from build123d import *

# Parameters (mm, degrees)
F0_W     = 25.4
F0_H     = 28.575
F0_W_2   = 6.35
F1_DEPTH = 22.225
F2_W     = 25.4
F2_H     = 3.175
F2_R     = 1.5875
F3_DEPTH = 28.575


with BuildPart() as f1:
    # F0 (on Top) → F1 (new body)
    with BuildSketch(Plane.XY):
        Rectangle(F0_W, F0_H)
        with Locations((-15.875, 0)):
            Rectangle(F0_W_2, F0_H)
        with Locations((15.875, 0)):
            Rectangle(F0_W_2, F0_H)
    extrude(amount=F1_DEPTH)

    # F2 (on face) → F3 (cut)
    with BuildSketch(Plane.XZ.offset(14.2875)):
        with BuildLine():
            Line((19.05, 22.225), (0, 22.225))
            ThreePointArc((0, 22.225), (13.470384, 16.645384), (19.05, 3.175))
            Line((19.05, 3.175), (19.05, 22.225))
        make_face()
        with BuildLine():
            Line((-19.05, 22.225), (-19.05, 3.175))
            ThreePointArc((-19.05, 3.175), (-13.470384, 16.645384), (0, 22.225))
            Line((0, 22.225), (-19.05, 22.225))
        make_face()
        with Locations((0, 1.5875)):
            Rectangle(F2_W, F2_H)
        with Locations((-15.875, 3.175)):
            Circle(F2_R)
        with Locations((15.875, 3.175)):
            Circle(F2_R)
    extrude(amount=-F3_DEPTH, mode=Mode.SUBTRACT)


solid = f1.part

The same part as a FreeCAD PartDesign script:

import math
import FreeCAD as App
import Part
import Sketcher
Q = App.Units.Quantity

doc = App.newDocument("Part")
params = doc.addObject("Spreadsheet::Sheet", "Params")
for row, (alias, value) in enumerate([
    ("sketch1_width", "1.5 in"),
    ("sketch1_height", "1.125 in"),
    ("pad1_length", "0.875 in"),
    ("sketch2_width", "1 in"),
    ("sketch2_radius", "0.75 in"),
    ("sketch2_diameter", "0.125 in"),
    ("sketch2_height", "0.125 in"),
    ("pocket1_length", "1.125 in"),
], start=1):
    params.set(f"A{row}", alias)
    params.set(f"B{row}", "=" + value)
    params.setAlias(f"B{row}", alias)

body = doc.addObject("PartDesign::Body", "Body")

# Sketch on XY plane
sketch1 = doc.addObject("Sketcher::SketchObject", "Sketch")
body.addObject(sketch1)
sketch1.AttachmentSupport = (doc.XY_Plane, [""])
sketch1.MapMode = "FlatFace"
sketch1.addGeometry(Part.LineSegment(App.Vector(-19, 14, 0), App.Vector(-19, -14, 0)), False)
sketch1.addGeometry(Part.LineSegment(App.Vector(-19, -14, 0), App.Vector(19, -14, 0)), False)
sketch1.addGeometry(Part.LineSegment(App.Vector(19, -14, 0), App.Vector(19, 14, 0)), False)
sketch1.addGeometry(Part.LineSegment(App.Vector(19, 14, 0), App.Vector(-19, 14, 0)), False)
sketch1.addConstraint(Sketcher.Constraint("Coincident", 0, 2, 1, 1))
sketch1.addConstraint(Sketcher.Constraint("Coincident", 1, 2, 2, 1))
sketch1.addConstraint(Sketcher.Constraint("Coincident", 2, 2, 3, 1))
sketch1.addConstraint(Sketcher.Constraint("Coincident", 3, 2, 0, 1))
sketch1.addConstraint(Sketcher.Constraint("Vertical", 0))
sketch1.addConstraint(Sketcher.Constraint("Horizontal", 1))
sketch1.addConstraint(Sketcher.Constraint("Vertical", 2))
sketch1.addConstraint(Sketcher.Constraint("Horizontal", 3))
sketch1.addConstraint(Sketcher.Constraint("Symmetric", 0, 2, 2, 2, -1, 1))
sketch1.addConstraint(Sketcher.Constraint("DistanceX", 1, 1, 1, 2, Q("1.5 in")))
sketch1.addConstraint(Sketcher.Constraint("DistanceY", 0, 2, 0, 1, Q("1.125 in")))
sketch1.setExpression("Constraints[9]", "Params.sketch1_width")
sketch1.setExpression("Constraints[10]", "Params.sketch1_height")
pad1 = doc.addObject("PartDesign::Pad", "Pad")
body.addObject(pad1)
pad1.Profile = sketch1
pad1.setExpression("Length", "Params.pad1_length")

# Sketch on XZ plane
sketch2 = doc.addObject("Sketcher::SketchObject", "Sketch001")
body.addObject(sketch2)
sketch2.AttachmentSupport = (doc.XZ_Plane, [""])
sketch2.MapMode = "FlatFace"
sketch2.AttachmentOffset = App.Placement(App.Vector(0, 0, 0.5625 * 25.4), App.Rotation())
sketch2.addGeometry(Part.LineSegment(App.Vector(19.1, 22.2, 0), App.Vector(0, 22.2, 0)), False)
sketch2.addGeometry(Part.ArcOfCircle(Part.Circle(App.Vector(0, 3.2, 0), App.Vector(0, 0, 1), 19.1), math.radians(0), math.radians(90)), False)
sketch2.addGeometry(Part.LineSegment(App.Vector(19.1, 3.2, 0), App.Vector(19.1, 22.2, 0)), False)
sketch2.addGeometry(Part.LineSegment(App.Vector(-19.1, 22.2, 0), App.Vector(-19.1, 3.2, 0)), False)
sketch2.addGeometry(Part.ArcOfCircle(Part.Circle(App.Vector(0, 3.2, 0), App.Vector(0, 0, 1), 19.1), math.radians(90), math.radians(180)), False)
sketch2.addGeometry(Part.LineSegment(App.Vector(0, 22.2, 0), App.Vector(-19.1, 22.2, 0)), False)
sketch2.addGeometry(Part.LineSegment(App.Vector(-12.7, 3.2, 0), App.Vector(-12.7, 0, 0)), False)
sketch2.addGeometry(Part.LineSegment(App.Vector(-12.7, 0, 0), App.Vector(12.7, 0, 0)), False)
sketch2.addGeometry(Part.LineSegment(App.Vector(12.7, 0, 0), App.Vector(12.7, 3.2, 0)), False)
sketch2.addGeometry(Part.LineSegment(App.Vector(12.7, 3.2, 0), App.Vector(-12.7, 3.2, 0)), False)
sketch2.addGeometry(Part.Circle(App.Vector(-15.9, 3.2, 0), App.Vector(0, 0, 1), 1.6), False)
sketch2.addGeometry(Part.Circle(App.Vector(15.9, 3.2, 0), App.Vector(0, 0, 1), 1.6), False)
sketch2.addConstraint(Sketcher.Constraint("Tangent", 0, 2, 1, 2))
sketch2.addConstraint(Sketcher.Constraint("Tangent", 1, 1, 2, 1))
sketch2.addConstraint(Sketcher.Constraint("Coincident", 2, 2, 0, 1))
sketch2.addConstraint(Sketcher.Constraint("Tangent", 3, 2, 4, 2))
sketch2.addConstraint(Sketcher.Constraint("Tangent", 4, 1, 5, 1))
sketch2.addConstraint(Sketcher.Constraint("Coincident", 5, 2, 3, 1))
sketch2.addConstraint(Sketcher.Constraint("Coincident", 6, 2, 7, 1))
sketch2.addConstraint(Sketcher.Constraint("Coincident", 7, 2, 8, 1))
sketch2.addConstraint(Sketcher.Constraint("Coincident", 8, 2, 9, 1))
sketch2.addConstraint(Sketcher.Constraint("Coincident", 9, 2, 6, 1))
sketch2.addConstraint(Sketcher.Constraint("Horizontal", 0))
sketch2.addConstraint(Sketcher.Constraint("Vertical", 2))
sketch2.addConstraint(Sketcher.Constraint("Vertical", 3))
sketch2.addConstraint(Sketcher.Constraint("Horizontal", 5))
sketch2.addConstraint(Sketcher.Constraint("Vertical", 6))
sketch2.addConstraint(Sketcher.Constraint("Horizontal", 7))
sketch2.addConstraint(Sketcher.Constraint("Vertical", 8))
sketch2.addConstraint(Sketcher.Constraint("Horizontal", 9))
sketch2.addConstraint(Sketcher.Constraint("Coincident", 4, 3, 1, 3))
sketch2.addConstraint(Sketcher.Constraint("Equal", 1, 4))
sketch2.addConstraint(Sketcher.Constraint("Equal", 10, 11))
sketch2.addConstraint(Sketcher.Constraint("Symmetric", 6, 2, 7, 2, -1, 1))
sketch2.addConstraint(Sketcher.Constraint("Symmetric", 10, 3, 11, 3, -2))
sketch2.addConstraint(Sketcher.Constraint("PointOnObject", 1, 3, -2))
sketch2.addConstraint(Sketcher.Constraint("Horizontal", 4, 3, 10, 3))
sketch2.addConstraint(Sketcher.Constraint("Horizontal", 3, 2, 8, 2))
sketch2.addConstraint(Sketcher.Constraint("DistanceX", 7, 1, 7, 2, Q("1 in")))
sketch2.addConstraint(Sketcher.Constraint("Radius", 1, Q("0.75 in")))
sketch2.addConstraint(Sketcher.Constraint("Diameter", 10, Q("0.125 in")))
sketch2.addConstraint(Sketcher.Constraint("DistanceY", 6, 2, 6, 1, Q("0.125 in")))
sketch2.addConstraint(Sketcher.Constraint("DistanceX", 10, 3, 11, 3, Q("1.25 in")))
sketch2.setExpression("Constraints[26]", "Params.sketch2_width")
sketch2.setExpression("Constraints[27]", "Params.sketch2_radius")
sketch2.setExpression("Constraints[28]", "Params.sketch2_diameter")
sketch2.setExpression("Constraints[29]", "Params.sketch2_height")
pocket1 = doc.addObject("PartDesign::Pocket", "Pocket")
body.addObject(pocket1)
pocket1.Profile = sketch2
pocket1.setExpression("Length", "Params.pocket1_length")

doc.recompute()
